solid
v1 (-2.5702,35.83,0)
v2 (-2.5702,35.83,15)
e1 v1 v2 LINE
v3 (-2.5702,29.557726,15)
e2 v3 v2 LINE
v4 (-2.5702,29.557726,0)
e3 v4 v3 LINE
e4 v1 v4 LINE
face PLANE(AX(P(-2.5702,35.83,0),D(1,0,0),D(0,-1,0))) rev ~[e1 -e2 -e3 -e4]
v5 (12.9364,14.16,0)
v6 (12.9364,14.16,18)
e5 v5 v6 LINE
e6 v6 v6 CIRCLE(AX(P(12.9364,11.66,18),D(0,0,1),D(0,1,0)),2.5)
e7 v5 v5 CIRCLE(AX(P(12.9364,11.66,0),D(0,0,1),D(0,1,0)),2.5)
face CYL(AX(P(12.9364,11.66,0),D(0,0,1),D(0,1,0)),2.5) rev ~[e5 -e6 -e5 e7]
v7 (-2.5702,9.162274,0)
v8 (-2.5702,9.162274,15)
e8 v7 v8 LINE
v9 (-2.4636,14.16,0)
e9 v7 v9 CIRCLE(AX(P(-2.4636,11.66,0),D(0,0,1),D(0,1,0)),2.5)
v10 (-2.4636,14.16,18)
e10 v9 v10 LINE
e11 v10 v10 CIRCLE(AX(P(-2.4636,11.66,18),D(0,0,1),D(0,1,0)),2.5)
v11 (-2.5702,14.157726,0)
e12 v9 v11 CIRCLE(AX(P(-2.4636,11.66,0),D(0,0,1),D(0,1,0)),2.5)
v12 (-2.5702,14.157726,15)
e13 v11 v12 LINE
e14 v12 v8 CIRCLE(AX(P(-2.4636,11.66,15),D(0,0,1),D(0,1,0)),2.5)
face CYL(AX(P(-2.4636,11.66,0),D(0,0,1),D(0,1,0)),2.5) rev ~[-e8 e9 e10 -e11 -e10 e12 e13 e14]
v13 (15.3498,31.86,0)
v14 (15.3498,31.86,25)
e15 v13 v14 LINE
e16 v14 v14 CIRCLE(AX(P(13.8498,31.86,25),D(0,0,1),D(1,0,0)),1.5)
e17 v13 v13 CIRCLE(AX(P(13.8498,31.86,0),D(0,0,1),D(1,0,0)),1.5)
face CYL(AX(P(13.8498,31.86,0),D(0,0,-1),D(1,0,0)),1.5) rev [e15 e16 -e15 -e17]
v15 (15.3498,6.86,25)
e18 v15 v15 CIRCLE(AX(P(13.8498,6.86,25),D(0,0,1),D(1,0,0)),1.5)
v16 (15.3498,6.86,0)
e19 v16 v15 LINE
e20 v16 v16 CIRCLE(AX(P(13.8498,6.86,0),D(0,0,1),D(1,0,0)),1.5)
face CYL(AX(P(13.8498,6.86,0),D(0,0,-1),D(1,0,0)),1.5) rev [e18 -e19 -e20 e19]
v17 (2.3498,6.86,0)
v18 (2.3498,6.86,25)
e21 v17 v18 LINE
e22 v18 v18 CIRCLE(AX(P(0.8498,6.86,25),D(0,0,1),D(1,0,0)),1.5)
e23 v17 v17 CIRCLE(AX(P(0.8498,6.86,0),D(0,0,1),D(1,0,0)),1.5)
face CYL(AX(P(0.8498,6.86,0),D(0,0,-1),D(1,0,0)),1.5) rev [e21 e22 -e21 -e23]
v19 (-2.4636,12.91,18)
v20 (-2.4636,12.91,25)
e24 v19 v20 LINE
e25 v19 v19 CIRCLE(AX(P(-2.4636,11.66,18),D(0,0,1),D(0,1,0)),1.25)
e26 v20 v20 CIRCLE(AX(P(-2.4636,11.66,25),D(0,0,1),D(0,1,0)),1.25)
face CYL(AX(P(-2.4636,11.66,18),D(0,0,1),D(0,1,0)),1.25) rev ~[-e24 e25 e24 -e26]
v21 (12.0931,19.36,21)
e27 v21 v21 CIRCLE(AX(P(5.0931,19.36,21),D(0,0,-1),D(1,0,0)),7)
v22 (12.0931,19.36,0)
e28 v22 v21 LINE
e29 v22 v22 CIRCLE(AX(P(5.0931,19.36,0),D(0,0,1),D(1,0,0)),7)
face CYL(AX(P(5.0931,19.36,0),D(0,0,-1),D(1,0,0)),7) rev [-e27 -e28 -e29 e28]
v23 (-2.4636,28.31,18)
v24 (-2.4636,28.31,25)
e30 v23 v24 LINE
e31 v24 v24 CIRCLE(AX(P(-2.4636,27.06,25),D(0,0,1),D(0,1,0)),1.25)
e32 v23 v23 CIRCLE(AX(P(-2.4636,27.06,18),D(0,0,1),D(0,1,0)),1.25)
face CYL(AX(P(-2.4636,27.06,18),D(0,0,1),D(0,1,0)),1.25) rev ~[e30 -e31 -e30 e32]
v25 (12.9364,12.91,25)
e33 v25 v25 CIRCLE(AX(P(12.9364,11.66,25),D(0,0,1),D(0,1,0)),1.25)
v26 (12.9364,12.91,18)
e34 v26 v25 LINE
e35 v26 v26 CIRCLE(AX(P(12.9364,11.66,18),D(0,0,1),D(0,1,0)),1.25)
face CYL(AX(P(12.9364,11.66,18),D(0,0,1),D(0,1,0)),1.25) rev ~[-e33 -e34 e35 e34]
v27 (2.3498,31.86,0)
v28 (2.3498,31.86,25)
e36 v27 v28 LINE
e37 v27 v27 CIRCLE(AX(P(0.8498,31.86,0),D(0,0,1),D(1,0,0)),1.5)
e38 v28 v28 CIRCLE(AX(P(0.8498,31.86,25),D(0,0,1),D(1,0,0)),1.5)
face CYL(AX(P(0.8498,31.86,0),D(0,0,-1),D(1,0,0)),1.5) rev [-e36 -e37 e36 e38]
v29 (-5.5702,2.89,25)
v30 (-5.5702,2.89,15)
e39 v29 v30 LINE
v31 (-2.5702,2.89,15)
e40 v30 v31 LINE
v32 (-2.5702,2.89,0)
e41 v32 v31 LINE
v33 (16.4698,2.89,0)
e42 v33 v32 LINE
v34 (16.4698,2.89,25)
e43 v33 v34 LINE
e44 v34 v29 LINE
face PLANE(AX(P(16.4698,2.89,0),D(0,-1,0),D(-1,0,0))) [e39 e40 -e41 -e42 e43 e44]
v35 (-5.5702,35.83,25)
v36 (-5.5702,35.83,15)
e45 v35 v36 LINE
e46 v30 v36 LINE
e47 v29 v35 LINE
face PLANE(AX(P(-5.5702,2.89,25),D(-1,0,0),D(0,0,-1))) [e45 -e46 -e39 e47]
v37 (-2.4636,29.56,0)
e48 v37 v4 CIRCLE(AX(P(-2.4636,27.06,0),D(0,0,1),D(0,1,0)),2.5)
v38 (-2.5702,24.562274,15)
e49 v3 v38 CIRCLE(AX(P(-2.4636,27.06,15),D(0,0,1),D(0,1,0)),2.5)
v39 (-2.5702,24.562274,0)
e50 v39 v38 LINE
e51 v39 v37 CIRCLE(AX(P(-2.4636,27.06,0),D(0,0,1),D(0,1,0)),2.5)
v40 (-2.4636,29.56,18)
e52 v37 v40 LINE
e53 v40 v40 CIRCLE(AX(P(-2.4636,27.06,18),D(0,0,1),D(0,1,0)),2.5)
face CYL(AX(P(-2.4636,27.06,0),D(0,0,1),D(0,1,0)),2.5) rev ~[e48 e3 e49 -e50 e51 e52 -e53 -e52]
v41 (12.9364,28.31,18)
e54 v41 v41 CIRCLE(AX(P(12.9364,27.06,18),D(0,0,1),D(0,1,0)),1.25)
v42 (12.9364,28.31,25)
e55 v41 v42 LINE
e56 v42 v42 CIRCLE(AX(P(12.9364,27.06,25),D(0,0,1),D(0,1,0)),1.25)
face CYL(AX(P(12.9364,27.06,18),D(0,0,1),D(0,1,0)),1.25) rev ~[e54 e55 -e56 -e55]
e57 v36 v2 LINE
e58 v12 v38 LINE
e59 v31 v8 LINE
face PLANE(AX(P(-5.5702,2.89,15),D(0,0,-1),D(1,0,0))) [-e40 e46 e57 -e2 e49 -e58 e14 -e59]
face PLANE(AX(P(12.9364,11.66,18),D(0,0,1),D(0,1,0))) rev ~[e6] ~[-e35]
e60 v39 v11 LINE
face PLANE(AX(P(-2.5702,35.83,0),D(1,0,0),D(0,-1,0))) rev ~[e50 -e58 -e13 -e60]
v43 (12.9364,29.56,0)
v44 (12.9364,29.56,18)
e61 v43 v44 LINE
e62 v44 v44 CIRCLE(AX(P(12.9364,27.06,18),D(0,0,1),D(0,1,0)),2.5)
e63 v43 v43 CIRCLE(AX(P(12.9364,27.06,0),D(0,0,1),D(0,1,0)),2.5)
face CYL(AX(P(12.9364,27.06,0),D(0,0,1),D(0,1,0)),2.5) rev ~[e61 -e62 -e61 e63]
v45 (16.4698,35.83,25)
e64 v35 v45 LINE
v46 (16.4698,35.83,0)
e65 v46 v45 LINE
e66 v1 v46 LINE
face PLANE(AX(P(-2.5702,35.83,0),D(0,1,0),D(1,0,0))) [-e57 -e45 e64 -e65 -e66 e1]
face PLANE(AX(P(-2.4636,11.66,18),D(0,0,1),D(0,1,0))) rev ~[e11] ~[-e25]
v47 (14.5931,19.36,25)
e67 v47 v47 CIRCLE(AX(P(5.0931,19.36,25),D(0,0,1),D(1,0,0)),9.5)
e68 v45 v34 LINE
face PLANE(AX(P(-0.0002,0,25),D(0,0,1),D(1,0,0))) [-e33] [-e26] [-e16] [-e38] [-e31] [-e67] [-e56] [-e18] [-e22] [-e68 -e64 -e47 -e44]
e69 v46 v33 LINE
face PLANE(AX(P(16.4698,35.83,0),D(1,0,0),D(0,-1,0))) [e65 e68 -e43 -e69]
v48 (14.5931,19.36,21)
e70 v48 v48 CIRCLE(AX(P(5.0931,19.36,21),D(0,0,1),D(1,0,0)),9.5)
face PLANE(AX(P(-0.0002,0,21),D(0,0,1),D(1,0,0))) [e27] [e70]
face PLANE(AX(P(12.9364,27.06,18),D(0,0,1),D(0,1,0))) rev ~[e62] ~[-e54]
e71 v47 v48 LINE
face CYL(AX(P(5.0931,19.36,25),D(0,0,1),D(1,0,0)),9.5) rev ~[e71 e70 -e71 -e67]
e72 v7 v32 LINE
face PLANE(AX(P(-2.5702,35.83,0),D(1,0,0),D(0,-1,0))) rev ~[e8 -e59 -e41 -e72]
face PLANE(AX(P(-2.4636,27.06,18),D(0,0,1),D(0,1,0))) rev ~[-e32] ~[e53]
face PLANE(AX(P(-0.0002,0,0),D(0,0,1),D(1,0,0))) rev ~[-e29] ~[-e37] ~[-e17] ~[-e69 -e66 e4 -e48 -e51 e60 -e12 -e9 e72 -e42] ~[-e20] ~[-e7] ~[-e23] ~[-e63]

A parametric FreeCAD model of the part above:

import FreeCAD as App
import Part
import Sketcher
from FreeCAD import Vector


def add_polygon(sketch, points):
    """Adds a closed chain of lines whose ends are joined by coincident constraints."""
    first, n = sketch.GeometryCount, len(points)
    for a, b in zip(points, points[1:] + points[:1]):
        sketch.addGeometry(Part.LineSegment(App.Vector(*a, 0), App.Vector(*b, 0)), False)
    for i in range(n):
        sketch.addConstraint(Sketcher.Constraint("Coincident", first + i, 2, first + (i + 1) % n, 1))

doc = App.newDocument("Part")
body = doc.addObject("PartDesign::Body", "Body")

sketch1 = body.newObject("Sketcher::SketchObject", "Sketch")
sketch1.AttachmentSupport = (doc.getObject("XY_Plane"), [""])
sketch1.MapMode = "FlatFace"
add_polygon(sketch1, [(-2.6, 35.8), (-2.6, 2.9), (16.5, 2.9), (16.5, 35.8)])
sketch1.addGeometry(Part.Circle(Vector(0.8, 6.9, 0), Vector(0, 0, 1), 1.5), False)
sketch1.addGeometry(Part.Circle(Vector(13.8, 6.9, 0), Vector(0, 0, 1), 1.5), False)
sketch1.addGeometry(Part.Circle(Vector(5.1, 19.4, 0), Vector(0, 0, 1), 7), False)
sketch1.addGeometry(Part.Circle(Vector(0.8, 31.9, 0), Vector(0, 0, 1), 1.5), False)
sketch1.addGeometry(Part.Circle(Vector(13.8, 31.9, 0), Vector(0, 0, 1), 1.5), False)
sketch1.addConstraint([
    Sketcher.Constraint("Vertical", 0),
    Sketcher.Constraint("Horizontal", 1),
    Sketcher.Constraint("Vertical", 2),
    Sketcher.Constraint("Horizontal", 3),
    Sketcher.Constraint("Equal", 4, 5),
    Sketcher.Constraint("Equal", 5, 7),
    Sketcher.Constraint("Equal", 7, 8),
    Sketcher.Constraint("Horizontal", 4, 3, 5, 3),
    Sketcher.Constraint("Horizontal", 7, 3, 8, 3),
    Sketcher.Constraint("Vertical", 4, 3, 7, 3),
    Sketcher.Constraint("Vertical", 5, 3, 8, 3),
    Sketcher.Constraint("Diameter", 6, 14.0),
    Sketcher.Constraint("Diameter", 4, 3.0),
    Sketcher.Constraint("DistanceX", 4, 3, 5, 3, 13.0),
    Sketcher.Constraint("DistanceY", 4, 3, 7, 3, 25.0),
    Sketcher.Constraint("DistanceX", 1, 1, 1, 2, 19.04),
    Sketcher.Constraint("DistanceY", 0, 2, 0, 1, 32.94),
    Sketcher.Constraint("DistanceY", 4, 3, 6, 3, 12.5),
    Sketcher.Constraint("DistanceY", -1, 1, 4, 3, 6.86),
    Sketcher.Constraint("DistanceY", -1, 1, 0, 2, 2.89),
    Sketcher.Constraint("DistanceX", 0, 2, 4, 3, 3.42),
    Sketcher.Constraint("DistanceX", -1, 1, 6, 3, 5.093),
    Sketcher.Constraint("DistanceX", -1, 1, 4, 3, 0.8498),
])
pad1 = body.newObject("PartDesign::Pad", "Pad")
pad1.Profile = sketch1
pad1.Length = 25

sketch2 = body.newObject("Sketcher::SketchObject", "Sketch001")
sketch2.AttachmentSupport = (doc.getObject("XZ_Plane"), [""])
sketch2.MapMode = "FlatFace"
sketch2.AttachmentOffset = App.Placement(Vector(0, 0, -2.89), App.Rotation())
add_polygon(sketch2, [(-5.6, 15), (-2.6, 15), (-2.6, 25), (-5.6, 25)])
sketch2.addConstraint([
    Sketcher.Constraint("Horizontal", 0),
    Sketcher.Constraint("Vertical", 1),
    Sketcher.Constraint("Horizontal", 2),
    Sketcher.Constraint("Vertical", 3),
    Sketcher.Constraint("DistanceX", 0, 1, 0, 2, 3.0),
    Sketcher.Constraint("DistanceY", 1, 1, 1, 2, 10.0),
    Sketcher.Constraint("DistanceY", -1, 1, 0, 2, 15.0),
    Sketcher.Constraint("DistanceX", 0, 2, -1, 1, 2.5702),
])
pad2 = body.newObject("PartDesign::Pad", "Pad001")
pad2.Profile = sketch2
pad2.Length = 32.94
pad2.Reversed = True

sketch3 = body.newObject("Sketcher::SketchObject", "Sketch002")
sketch3.AttachmentSupport = (doc.getObject("XY_Plane"), [""])
sketch3.MapMode = "FlatFace"
sketch3.addGeometry([
    Part.Circle(Vector(-2.5, 11.7, 0), Vector(0, 0, 1), 1.2),
    Part.Circle(Vector(-2.5, 27.1, 0), Vector(0, 0, 1), 1.2),
    Part.Circle(Vector(12.9, 27.1, 0), Vector(0, 0, 1), 1.2),
    Part.Circle(Vector(12.9, 11.7, 0), Vector(0, 0, 1), 1.2),
], False)
sketch3.addConstraint([
    Sketcher.Constraint("Equal", 0, 1),
    Sketcher.Constraint("Equal", 1, 2),
    Sketcher.Constraint("Equal", 2, 3),
    Sketcher.Constraint("Horizontal", 1, 3, 2, 3),
    Sketcher.Constraint("Horizontal", 0, 3, 3, 3),
    Sketcher.Constraint("Vertical", 0, 3, 1, 3),
    Sketcher.Constraint("Vertical", 2, 3, 3, 3),
    Sketcher.Constraint("Diameter", 0, 2.5),
    Sketcher.Constraint("DistanceY", 0, 3, 1, 3, 15.4),
    Sketcher.Constraint("DistanceX", 1, 3, 2, 3, 15.4),
    Sketcher.Constraint("DistanceY", -1, 1, 0, 3, 11.66),
    Sketcher.Constraint("DistanceX", 0, 3, -1, 1, 2.4636),
])
doc.recompute()
hole = body.newObject("PartDesign::Hole", "Hole")
hole.Profile = sketch3
hole.ThreadType = "None"
hole.Diameter = 2.5
hole.DepthType = "ThroughAll"
hole.HoleCutType = "Counterbore"
hole.HoleCutDiameter = 5
hole.HoleCutDepth = 18
hole.Reversed = True

sketch4 = body.newObject("Sketcher::SketchObject", "Sketch003")
sketch4.AttachmentSupport = (doc.getObject("XY_Plane"), [""])
sketch4.MapMode = "FlatFace"
sketch4.AttachmentOffset = App.Placement(Vector(0, 0, 25), App.Rotation())
sketch4.addGeometry(Part.Circle(Vector(5, 19, 0), Vector(0, 0, 1), 10), False)
sketch4.addConstraint([
    Sketcher.Constraint("Diameter", 0, 19.0),
    Sketcher.Constraint("DistanceY", -1, 1, 0, 3, 19.36),
    Sketcher.Constraint("DistanceX", -1, 1, 0, 3, 5.093),
])
pocket1 = body.newObject("PartDesign::Pocket", "Pocket")
pocket1.Profile = sketch4
pocket1.Length = 4

doc.recompute()
